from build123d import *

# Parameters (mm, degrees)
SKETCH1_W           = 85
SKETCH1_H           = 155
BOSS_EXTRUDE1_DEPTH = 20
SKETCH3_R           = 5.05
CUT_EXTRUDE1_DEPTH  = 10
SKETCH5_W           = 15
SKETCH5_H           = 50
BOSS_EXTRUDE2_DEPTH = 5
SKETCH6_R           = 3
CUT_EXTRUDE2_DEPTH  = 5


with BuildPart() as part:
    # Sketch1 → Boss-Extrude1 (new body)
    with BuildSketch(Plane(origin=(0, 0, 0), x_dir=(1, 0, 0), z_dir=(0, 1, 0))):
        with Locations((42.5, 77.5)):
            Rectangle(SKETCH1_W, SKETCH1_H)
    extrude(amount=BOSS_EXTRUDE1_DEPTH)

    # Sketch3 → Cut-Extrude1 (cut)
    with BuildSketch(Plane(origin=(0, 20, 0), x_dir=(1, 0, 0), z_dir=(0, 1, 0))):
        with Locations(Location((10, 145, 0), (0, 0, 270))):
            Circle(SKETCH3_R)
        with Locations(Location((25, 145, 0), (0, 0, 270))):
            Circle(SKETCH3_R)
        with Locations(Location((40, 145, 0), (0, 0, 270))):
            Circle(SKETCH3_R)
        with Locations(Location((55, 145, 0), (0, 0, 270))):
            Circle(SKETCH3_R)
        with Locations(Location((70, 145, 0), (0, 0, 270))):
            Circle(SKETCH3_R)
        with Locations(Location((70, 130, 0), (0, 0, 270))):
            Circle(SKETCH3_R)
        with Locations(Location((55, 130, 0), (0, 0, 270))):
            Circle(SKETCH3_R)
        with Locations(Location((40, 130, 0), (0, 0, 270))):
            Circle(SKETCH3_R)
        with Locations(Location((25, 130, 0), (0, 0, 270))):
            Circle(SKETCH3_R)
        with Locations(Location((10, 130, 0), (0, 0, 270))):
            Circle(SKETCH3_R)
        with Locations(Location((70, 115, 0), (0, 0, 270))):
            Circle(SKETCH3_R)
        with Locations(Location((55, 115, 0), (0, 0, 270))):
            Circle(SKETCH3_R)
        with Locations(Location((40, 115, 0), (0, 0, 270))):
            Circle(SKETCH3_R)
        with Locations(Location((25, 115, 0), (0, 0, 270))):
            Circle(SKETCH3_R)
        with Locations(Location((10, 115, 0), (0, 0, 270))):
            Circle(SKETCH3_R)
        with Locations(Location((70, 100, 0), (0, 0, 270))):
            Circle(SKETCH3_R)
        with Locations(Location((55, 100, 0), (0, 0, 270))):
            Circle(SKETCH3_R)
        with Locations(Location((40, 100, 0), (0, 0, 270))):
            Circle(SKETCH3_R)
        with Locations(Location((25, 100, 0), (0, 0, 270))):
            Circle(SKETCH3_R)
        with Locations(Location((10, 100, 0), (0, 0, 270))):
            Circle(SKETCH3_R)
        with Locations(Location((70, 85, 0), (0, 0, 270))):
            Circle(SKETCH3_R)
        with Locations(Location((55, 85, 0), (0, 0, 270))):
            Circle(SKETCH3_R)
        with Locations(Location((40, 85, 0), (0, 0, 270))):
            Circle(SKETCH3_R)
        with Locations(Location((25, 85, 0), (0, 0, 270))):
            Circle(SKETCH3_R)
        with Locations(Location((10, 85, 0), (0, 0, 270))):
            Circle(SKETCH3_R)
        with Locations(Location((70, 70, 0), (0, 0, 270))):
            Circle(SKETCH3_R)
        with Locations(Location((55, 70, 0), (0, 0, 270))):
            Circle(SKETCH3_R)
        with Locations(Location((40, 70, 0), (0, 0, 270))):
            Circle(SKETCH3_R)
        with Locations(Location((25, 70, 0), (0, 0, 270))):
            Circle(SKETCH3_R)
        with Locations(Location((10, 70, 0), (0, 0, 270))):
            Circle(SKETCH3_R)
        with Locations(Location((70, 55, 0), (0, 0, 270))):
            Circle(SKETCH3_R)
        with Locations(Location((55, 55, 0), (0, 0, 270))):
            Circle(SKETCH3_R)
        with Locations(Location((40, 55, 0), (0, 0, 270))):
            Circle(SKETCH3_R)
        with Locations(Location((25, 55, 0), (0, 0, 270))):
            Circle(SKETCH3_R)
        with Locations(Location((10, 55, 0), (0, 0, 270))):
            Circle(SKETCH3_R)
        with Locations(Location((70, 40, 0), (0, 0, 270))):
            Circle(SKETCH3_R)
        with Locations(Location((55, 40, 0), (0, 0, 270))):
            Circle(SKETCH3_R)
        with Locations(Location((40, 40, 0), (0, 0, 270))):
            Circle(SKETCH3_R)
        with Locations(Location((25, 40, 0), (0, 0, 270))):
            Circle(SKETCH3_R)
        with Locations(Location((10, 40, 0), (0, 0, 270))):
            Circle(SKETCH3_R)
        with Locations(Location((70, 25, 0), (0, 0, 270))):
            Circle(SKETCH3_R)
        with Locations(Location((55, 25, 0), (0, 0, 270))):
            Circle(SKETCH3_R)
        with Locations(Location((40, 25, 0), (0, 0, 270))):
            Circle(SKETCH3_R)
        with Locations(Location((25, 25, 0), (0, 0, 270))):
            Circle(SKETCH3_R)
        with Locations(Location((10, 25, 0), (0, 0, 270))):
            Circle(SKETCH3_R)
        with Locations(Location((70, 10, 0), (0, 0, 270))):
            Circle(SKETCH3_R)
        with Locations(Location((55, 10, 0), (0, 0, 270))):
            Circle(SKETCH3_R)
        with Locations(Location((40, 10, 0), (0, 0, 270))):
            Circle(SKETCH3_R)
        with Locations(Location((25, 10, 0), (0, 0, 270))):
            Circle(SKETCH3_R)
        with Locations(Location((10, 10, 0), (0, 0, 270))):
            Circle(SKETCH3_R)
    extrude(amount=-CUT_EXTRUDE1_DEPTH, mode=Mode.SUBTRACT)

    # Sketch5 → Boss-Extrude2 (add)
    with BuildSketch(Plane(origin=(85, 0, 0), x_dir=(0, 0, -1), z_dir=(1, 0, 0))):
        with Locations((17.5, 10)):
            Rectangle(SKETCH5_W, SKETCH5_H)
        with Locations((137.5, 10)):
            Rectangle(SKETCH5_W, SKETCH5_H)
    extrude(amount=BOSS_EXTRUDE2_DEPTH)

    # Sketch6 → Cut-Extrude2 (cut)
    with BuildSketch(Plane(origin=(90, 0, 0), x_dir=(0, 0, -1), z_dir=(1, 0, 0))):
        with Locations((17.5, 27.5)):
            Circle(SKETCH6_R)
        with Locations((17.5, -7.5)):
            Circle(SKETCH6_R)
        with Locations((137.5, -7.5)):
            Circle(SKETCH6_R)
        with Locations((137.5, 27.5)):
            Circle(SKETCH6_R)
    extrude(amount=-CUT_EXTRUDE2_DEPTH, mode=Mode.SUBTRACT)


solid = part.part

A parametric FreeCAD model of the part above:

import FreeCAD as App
import Part
import Sketcher


def add_polygon(sketch, points):
    """Adds a closed chain of lines whose ends are joined by coincident constraints."""
    first, n = sketch.GeometryCount, len(points)
    for a, b in zip(points, points[1:] + points[:1]):
        sketch.addGeometry(Part.LineSegment(App.Vector(*a, 0), App.Vector(*b, 0)), False)
    for i in range(n):
        sketch.addConstraint(Sketcher.Constraint("Coincident", first + i, 2, first + (i + 1) % n, 1))

doc = App.newDocument("Part")
body = doc.addObject("PartDesign::Body", "Body")

# Sketch on XZ plane
sketch1 = body.newObject("Sketcher::SketchObject", "Sketch")
sketch1.AttachmentSupport = (doc.getObject("XZ_Plane"), [""])
sketch1.MapMode = "FlatFace"
add_polygon(sketch1, [(0, -155), (0, 0), (85, 0), (85, -155)])  # lines 0-3
sketch1.addConstraint([
    Sketcher.Constraint("Vertical", 0),
    Sketcher.Constraint("Horizontal", 1),
    Sketcher.Constraint("Vertical", 2),
    Sketcher.Constraint("Horizontal", 3),
    Sketcher.Constraint("Coincident", 0, 2, -1, 1),
    Sketcher.Constraint("DistanceX", 1, 1, 1, 2, 85.0),
    Sketcher.Constraint("DistanceY", 0, 1, 0, 2, 155.0),
])
pad1 = body.newObject("PartDesign::Pad", "Pad")
pad1.Profile = sketch1
pad1.Length = 20
pad1.Reversed = True

# Sketch on XZ plane
sketch2 = body.newObject("Sketcher::SketchObject", "Sketch001")
sketch2.AttachmentSupport = (doc.getObject("XZ_Plane"), [""])
sketch2.MapMode = "FlatFace"
sketch2.AttachmentOffset = App.Placement(App.Vector(0, 0, -20), App.Rotation())
sketch2.addGeometry([
    Part.Circle(App.Vector(10, -145, 0), App.Vector(0, 0, 1), 5),  # 0
    Part.Circle(App.Vector(25, -145, 0), App.Vector(0, 0, 1), 5),  # 1
    Part.Circle(App.Vector(40, -145, 0), App.Vector(0, 0, 1), 5),  # 2
    Part.Circle(App.Vector(55, -145, 0), App.Vector(0, 0, 1), 5),  # 3
    Part.Circle(App.Vector(70, -145, 0), App.Vector(0, 0, 1), 5),  # 4
    Part.Circle(App.Vector(70, -130, 0), App.Vector(0, 0, 1), 5),  # 5
    Part.Circle(App.Vector(55, -130, 0), App.Vector(0, 0, 1), 5),  # 6
    Part.Circle(App.Vector(40, -130, 0), App.Vector(0, 0, 1), 5),  # 7
    Part.Circle(App.Vector(25, -130, 0), App.Vector(0, 0, 1), 5),  # 8
    Part.Circle(App.Vector(10, -130, 0), App.Vector(0, 0, 1), 5),  # 9
    Part.Circle(App.Vector(70, -115, 0), App.Vector(0, 0, 1), 5),  # 10
    Part.Circle(App.Vector(55, -115, 0), App.Vector(0, 0, 1), 5),  # 11
    Part.Circle(App.Vector(40, -115, 0), App.Vector(0, 0, 1), 5),  # 12
    Part.Circle(App.Vector(25, -115, 0), App.Vector(0, 0, 1), 5),  # 13
    Part.Circle(App.Vector(10, -115, 0), App.Vector(0, 0, 1), 5),  # 14
    Part.Circle(App.Vector(70, -100, 0), App.Vector(0, 0, 1), 5),  # 15
    Part.Circle(App.Vector(55, -100, 0), App.Vector(0, 0, 1), 5),  # 16
    Part.Circle(App.Vector(40, -100, 0), App.Vector(0, 0, 1), 5),  # 17
    Part.Circle(App.Vector(25, -100, 0), App.Vector(0, 0, 1), 5),  # 18
    Part.Circle(App.Vector(10, -100, 0), App.Vector(0, 0, 1), 5),  # 19
    Part.Circle(App.Vector(70, -85, 0), App.Vector(0, 0, 1), 5),  # 20
    Part.Circle(App.Vector(55, -85, 0), App.Vector(0, 0, 1), 5),  # 21
    Part.Circle(App.Vector(40, -85, 0), App.Vector(0, 0, 1), 5),  # 22
    Part.Circle(App.Vector(25, -85, 0), App.Vector(0, 0, 1), 5),  # 23
    Part.Circle(App.Vector(10, -85, 0), App.Vector(0, 0, 1), 5),  # 24
    Part.Circle(App.Vector(70, -70, 0), App.Vector(0, 0, 1), 5),  # 25
    Part.Circle(App.Vector(55, -70, 0), App.Vector(0, 0, 1), 5),  # 26
    Part.Circle(App.Vector(40, -70, 0), App.Vector(0, 0, 1), 5),  # 27
    Part.Circle(App.Vector(25, -70, 0), App.Vector(0, 0, 1), 5),  # 28
    Part.Circle(App.Vector(10, -70, 0), App.Vector(0, 0, 1), 5),  # 29
    Part.Circle(App.Vector(70, -55, 0), App.Vector(0, 0, 1), 5),  # 30
    Part.Circle(App.Vector(55, -55, 0), App.Vector(0, 0, 1), 5),  # 31
    Part.Circle(App.Vector(40, -55, 0), App.Vector(0, 0, 1), 5),  # 32
    Part.Circle(App.Vector(25, -55, 0), App.Vector(0, 0, 1), 5),  # 33
    Part.Circle(App.Vector(10, -55, 0), App.Vector(0, 0, 1), 5),  # 34
    Part.Circle(App.Vector(70, -40, 0), App.Vector(0, 0, 1), 5),  # 35
    Part.Circle(App.Vector(55, -40, 0), App.Vector(0, 0, 1), 5),  # 36
    Part.Circle(App.Vector(40, -40, 0), App.Vector(0, 0, 1), 5),  # 37
    Part.Circle(App.Vector(25, -40, 0), App.Vector(0, 0, 1), 5),  # 38
    Part.Circle(App.Vector(10, -40, 0), App.Vector(0, 0, 1), 5),  # 39
    Part.Circle(App.Vector(70, -25, 0), App.Vector(0, 0, 1), 5),  # 40
    Part.Circle(App.Vector(55, -25, 0), App.Vector(0, 0, 1), 5),  # 41
    Part.Circle(App.Vector(40, -25, 0), App.Vector(0, 0, 1), 5),  # 42
    Part.Circle(App.Vector(25, -25, 0), App.Vector(0, 0, 1), 5),  # 43
    Part.Circle(App.Vector(10, -25, 0), App.Vector(0, 0, 1), 5),  # 44
    Part.Circle(App.Vector(70, -10, 0), App.Vector(0, 0, 1), 5),  # 45
    Part.Circle(App.Vector(55, -10, 0), App.Vector(0, 0, 1), 5),  # 46
    Part.Circle(App.Vector(40, -10, 0), App.Vector(0, 0, 1), 5),  # 47
    Part.Circle(App.Vector(25, -10, 0), App.Vector(0, 0, 1), 5),  # 48
    Part.Circle(App.Vector(10, -10, 0), App.Vector(0, 0, 1), 5),  # 49
], False)
sketch2.addConstraint([
    Sketcher.Constraint("Equal", 0, 1),
    Sketcher.Constraint("Equal", 1, 2),
    Sketcher.Constraint("Equal", 2, 3),
    Sketcher.Constraint("Equal", 3, 4),
    Sketcher.Constraint("Equal", 4, 5),
    Sketcher.Constraint("Equal", 5, 6),
    Sketcher.Constraint("Equal", 6, 7),
    Sketcher.Constraint("Equal", 7, 8),
    Sketcher.Constraint("Equal", 8, 9),
    Sketcher.Constraint("Equal", 9, 10),
    Sketcher.Constraint("Equal", 10, 11),
    Sketcher.Constraint("Equal", 11, 12),
    Sketcher.Constraint("Equal", 12, 13),
    Sketcher.Constraint("Equal", 13, 14),
    Sketcher.Constraint("Equal", 14, 15),
    Sketcher.Constraint("Equal", 15, 16),
    Sketcher.Constraint("Equal", 16, 17),
    Sketcher.Constraint("Equal", 17, 18),
    Sketcher.Constraint("Equal", 18, 19),
    Sketcher.Constraint("Equal", 19, 20),
    Sketcher.Constraint("Equal", 20, 21),
    Sketcher.Constraint("Equal", 21, 22),
    Sketcher.Constraint("Equal", 22, 23),
    Sketcher.Constraint("Equal", 23, 24),
    Sketcher.Constraint("Equal", 24, 25),
    Sketcher.Constraint("Equal", 25, 26),
    Sketcher.Constraint("Equal", 26, 27),
    Sketcher.Constraint("Equal", 27, 28),
    Sketcher.Constraint("Equal", 28, 29),
    Sketcher.Constraint("Equal", 29, 30),
    Sketcher.Constraint("Equal", 30, 31),
    Sketcher.Constraint("Equal", 31, 32),
    Sketcher.Constraint("Equal", 32, 33),
    Sketcher.Constraint("Equal", 33, 34),
    Sketcher.Constraint("Equal", 34, 35),
    Sketcher.Constraint("Equal", 35, 36),
    Sketcher.Constraint("Equal", 36, 37),
    Sketcher.Constraint("Equal", 37, 38),
    Sketcher.Constraint("Equal", 38, 39),
    Sketcher.Constraint("Equal", 39, 40),
    Sketcher.Constraint("Equal", 40, 41),
    Sketcher.Constraint("Equal", 41, 42),
    Sketcher.Constraint("Equal", 42, 43),
    Sketcher.Constraint("Equal", 43, 44),
    Sketcher.Constraint("Equal", 44, 45),
    Sketcher.Constraint("Equal", 45, 46),
    Sketcher.Constraint("Equal", 46, 47),
    Sketcher.Constraint("Equal", 47, 48),
    Sketcher.Constraint("Equal", 48, 49),
    Sketcher.Constraint("Horizontal", 0, 3, 1, 3),
    Sketcher.Constraint("Horizontal", 1, 3, 2, 3),
    Sketcher.Constraint("Horizontal", 2, 3, 3, 3),
    Sketcher.Constraint("Horizontal", 3, 3, 4, 3),
    Sketcher.Constraint("Horizontal", 5, 3, 6, 3),
    Sketcher.Constraint("Horizontal", 6, 3, 7, 3),
    Sketcher.Constraint("Horizontal", 7, 3, 8, 3),
    Sketcher.Constraint("Horizontal", 8, 3, 9, 3),
    Sketcher.Constraint("Horizontal", 10, 3, 11, 3),
    Sketcher.Constraint("Horizontal", 11, 3, 12, 3),
    Sketcher.Constraint("Horizontal", 12, 3, 13, 3),
    Sketcher.Constraint("Horizontal", 13, 3, 14, 3),
    Sketcher.Constraint("Horizontal", 15, 3, 16, 3),
    Sketcher.Constraint("Horizontal", 16, 3, 17, 3),
    Sketcher.Constraint("Horizontal", 17, 3, 18, 3),
    Sketcher.Constraint("Horizontal", 18, 3, 19, 3),
    Sketcher.Constraint("Horizontal", 20, 3, 21, 3),
    Sketcher.Constraint("Horizontal", 21, 3, 22, 3),
    Sketcher.Constraint("Horizontal", 22, 3, 23, 3),
    Sketcher.Constraint("Horizontal", 23, 3, 24, 3),
    Sketcher.Constraint("Horizontal", 25, 3, 26, 3),
    Sketcher.Constraint("Horizontal", 26, 3, 27, 3),
    Sketcher.Constraint("Horizontal", 27, 3, 28, 3),
    Sketcher.Constraint("Horizontal", 28, 3, 29, 3),
    Sketcher.Constraint("Horizontal", 30, 3, 31, 3),
    Sketcher.Constraint("Horizontal", 31, 3, 32, 3),
    Sketcher.Constraint("Horizontal", 32, 3, 33, 3),
    Sketcher.Constraint("Horizontal", 33, 3, 34, 3),
    Sketcher.Constraint("Horizontal", 35, 3, 36, 3),
    Sketcher.Constraint("Horizontal", 36, 3, 37, 3),
    Sketcher.Constraint("Horizontal", 37, 3, 38, 3),
    Sketcher.Constraint("Horizontal", 38, 3, 39, 3),
    Sketcher.Constraint("Horizontal", 40, 3, 41, 3),
    Sketcher.Constraint("Horizontal", 41, 3, 42, 3),
    Sketcher.Constraint("Horizontal", 42, 3, 43, 3),
    Sketcher.Constraint("Horizontal", 43, 3, 44, 3),
    Sketcher.Constraint("Horizontal", 45, 3, 46, 3),
    Sketcher.Constraint("Horizontal", 46, 3, 47, 3),
    Sketcher.Constraint("Horizontal", 47, 3, 48, 3),
    Sketcher.Constraint("Horizontal", 48, 3, 49, 3),
    Sketcher.Constraint("Vertical", 4, 3, 5, 3),
    Sketcher.Constraint("Vertical", 3, 3, 6, 3),
    Sketcher.Constraint("Vertical", 2, 3, 7, 3),
    Sketcher.Constraint("Vertical", 1, 3, 8, 3),
    Sketcher.Constraint("Vertical", 0, 3, 9, 3),
    Sketcher.Constraint("Vertical", 5, 3, 10, 3),
    Sketcher.Constraint("Vertical", 6, 3, 11, 3),
    Sketcher.Constraint("Vertical", 7, 3, 12, 3),
    Sketcher.Constraint("Vertical", 8, 3, 13, 3),
    Sketcher.Constraint("Vertical", 9, 3, 14, 3),
    Sketcher.Constraint("Vertical", 10, 3, 15, 3),
    Sketcher.Constraint("Vertical", 11, 3, 16, 3),
    Sketcher.Constraint("Vertical", 12, 3, 17, 3),
    Sketcher.Constraint("Vertical", 13, 3, 18, 3),
    Sketcher.Constraint("Vertical", 14, 3, 19, 3),
    Sketcher.Constraint("Vertical", 15, 3, 20, 3),
    Sketcher.Constraint("Vertical", 16, 3, 21, 3),
    Sketcher.Constraint("Vertical", 17, 3, 22, 3),
    Sketcher.Constraint("Vertical", 18, 3, 23, 3),
    Sketcher.Constraint("Vertical", 19, 3, 24, 3),
    Sketcher.Constraint("Vertical", 20, 3, 25, 3),
    Sketcher.Constraint("Vertical", 21, 3, 26, 3),
    Sketcher.Constraint("Vertical", 22, 3, 27, 3),
    Sketcher.Constraint("Vertical", 23, 3, 28, 3),
    Sketcher.Constraint("Vertical", 24, 3, 29, 3),
    Sketcher.Constraint("Vertical", 25, 3, 30, 3),
    Sketcher.Constraint("Vertical", 26, 3, 31, 3),
    Sketcher.Constraint("Vertical", 27, 3, 32, 3),
    Sketcher.Constraint("Vertical", 28, 3, 33, 3),
    Sketcher.Constraint("Vertical", 29, 3, 34, 3),
    Sketcher.Constraint("Vertical", 30, 3, 35, 3),
    Sketcher.Constraint("Vertical", 31, 3, 36, 3),
    Sketcher.Constraint("Vertical", 32, 3, 37, 3),
    Sketcher.Constraint("Vertical", 33, 3, 38, 3),
    Sketcher.Constraint("Vertical", 34, 3, 39, 3),
    Sketcher.Constraint("Vertical", 35, 3, 40, 3),
    Sketcher.Constraint("Vertical", 36, 3, 41, 3),
    Sketcher.Constraint("Vertical", 37, 3, 42, 3),
    Sketcher.Constraint("Vertical", 38, 3, 43, 3),
    Sketcher.Constraint("Vertical", 39, 3, 44, 3),
    Sketcher.Constraint("Vertical", 40, 3, 45, 3),
    Sketcher.Constraint("Vertical", 41, 3, 46, 3),
    Sketcher.Constraint("Vertical", 42, 3, 47, 3),
    Sketcher.Constraint("Vertical", 43, 3, 48, 3),
    Sketcher.Constraint("Vertical", 44, 3, 49, 3),
    Sketcher.Constraint("Diameter", 0, 10.1),
    Sketcher.Constraint("DistanceX", -1, 1, 0, 3, 10.0),
    Sketcher.Constraint("DistanceY", 0, 3, -1, 1, 145.0),
    Sketcher.Constraint("DistanceX", -1, 1, 1, 3, 25.0),
    Sketcher.Constraint("DistanceX", -1, 1, 2, 3, 40.0),
    Sketcher.Constraint("DistanceX", -1, 1, 3, 3, 55.0),
    Sketcher.Constraint("DistanceX", -1, 1, 4, 3, 70.0),
    Sketcher.Constraint("DistanceY", 5, 3, -1, 1, 130.0),
    Sketcher.Constraint("DistanceY", 10, 3, -1, 1, 115.0),
    Sketcher.Constraint("DistanceY", 15, 3, -1, 1, 100.0),
    Sketcher.Constraint("DistanceY", 20, 3, -1, 1, 85.0),
    Sketcher.Constraint("DistanceY", 25, 3, -1, 1, 70.0),
    Sketcher.Constraint("DistanceY", 30, 3, -1, 1, 55.0),
    Sketcher.Constraint("DistanceY", 35, 3, -1, 1, 40.0),
    Sketcher.Constraint("DistanceY", 40, 3, -1, 1, 25.0),
    Sketcher.Constraint("DistanceY", 45, 3, -1, 1, 10.0),
])
pocket1 = body.newObject("PartDesign::Pocket", "Pocket")
pocket1.Profile = sketch2
pocket1.Length = 10
pocket1.Reversed = True

# Sketch on YZ plane
sketch3 = body.newObject("Sketcher::SketchObject", "Sketch002")
sketch3.AttachmentSupport = (doc.getObject("YZ_Plane"), [""])
sketch3.MapMode = "FlatFace"
sketch3.AttachmentOffset = App.Placement(App.Vector(0, 0, 85), App.Rotation())
add_polygon(sketch3, [(35, -10), (-15, -10), (-15, -25), (35, -25)])  # lines 0-3
add_polygon(sketch3, [(35, -130), (-15, -130), (-15, -145), (35, -145)])  # lines 4-7
sketch3.addConstraint([
    Sketcher.Constraint("Horizontal", 0),
    Sketcher.Constraint("Vertical", 1),
    Sketcher.Constraint("Horizontal", 2),
    Sketcher.Constraint("Vertical", 3),
    Sketcher.Constraint("Horizontal", 4),
    Sketcher.Constraint("Vertical", 5),
    Sketcher.Constraint("Horizontal", 6),
    Sketcher.Constraint("Vertical", 7),
    Sketcher.Constraint("Vertical", 1, 2, 4, 2),
    Sketcher.Constraint("Vertical", 3, 2, 6, 2),
    Sketcher.Constraint("Equal", 3, 5),
    Sketcher.Constraint("DistanceX", 0, 2, 0, 1, 50.0),
    Sketcher.Constraint("DistanceY", 1, 2, 1, 1, 15.0),
    Sketcher.Constraint("DistanceX", 0, 2, -1, 1, 15.0),
    Sketcher.Constraint("DistanceY", 0, 2, -1, 1, 10.0),
    Sketcher.Constraint("DistanceY", 4, 2, -1, 1, 130.0),
])
pad2 = body.newObject("PartDesign::Pad", "Pad001")
pad2.Profile = sketch3
pad2.Length = 5

# Sketch on YZ plane
sketch4 = body.newObject("Sketcher::SketchObject", "Sketch003")
sketch4.AttachmentSupport = (doc.getObject("YZ_Plane"), [""])
sketch4.MapMode = "FlatFace"
sketch4.AttachmentOffset = App.Placement(App.Vector(0, 0, 90), App.Rotation())
sketch4.addGeometry([
    Part.Circle(App.Vector(27.5, -17.5, 0), App.Vector(0, 0, 1), 3),
    Part.Circle(App.Vector(-7.5, -17.5, 0), App.Vector(0, 0, 1), 3),
    Part.Circle(App.Vector(-7.5, -137.5, 0), App.Vector(0, 0, 1), 3),
    Part.Circle(App.Vector(27.5, -137.5, 0), App.Vector(0, 0, 1), 3),
], False)
sketch4.addConstraint([
    Sketcher.Constraint("Equal", 0, 1),
    Sketcher.Constraint("Equal", 1, 2),
    Sketcher.Constraint("Equal", 2, 3),
    Sketcher.Constraint("Horizontal", 0, 3, 1, 3),
    Sketcher.Constraint("Horizontal", 2, 3, 3, 3),
    Sketcher.Constraint("Vertical", 1, 3, 2, 3),
    Sketcher.Constraint("Vertical", 0, 3, 3, 3),
    Sketcher.Constraint("Diameter", 0, 6.0),
    Sketcher.Constraint("DistanceX", 1, 3, 0, 3, 35.0),
    Sketcher.Constraint("DistanceY", 2, 3, 1, 3, 120.0),
    Sketcher.Constraint("DistanceX", -1, 1, 0, 3, 27.5),
    Sketcher.Constraint("DistanceY", 0, 3, -1, 1, 17.5),
])
pocket2 = body.newObject("PartDesign::Pocket", "Pocket001")
pocket2.Profile = sketch4
pocket2.Length = 5

doc.recompute()
